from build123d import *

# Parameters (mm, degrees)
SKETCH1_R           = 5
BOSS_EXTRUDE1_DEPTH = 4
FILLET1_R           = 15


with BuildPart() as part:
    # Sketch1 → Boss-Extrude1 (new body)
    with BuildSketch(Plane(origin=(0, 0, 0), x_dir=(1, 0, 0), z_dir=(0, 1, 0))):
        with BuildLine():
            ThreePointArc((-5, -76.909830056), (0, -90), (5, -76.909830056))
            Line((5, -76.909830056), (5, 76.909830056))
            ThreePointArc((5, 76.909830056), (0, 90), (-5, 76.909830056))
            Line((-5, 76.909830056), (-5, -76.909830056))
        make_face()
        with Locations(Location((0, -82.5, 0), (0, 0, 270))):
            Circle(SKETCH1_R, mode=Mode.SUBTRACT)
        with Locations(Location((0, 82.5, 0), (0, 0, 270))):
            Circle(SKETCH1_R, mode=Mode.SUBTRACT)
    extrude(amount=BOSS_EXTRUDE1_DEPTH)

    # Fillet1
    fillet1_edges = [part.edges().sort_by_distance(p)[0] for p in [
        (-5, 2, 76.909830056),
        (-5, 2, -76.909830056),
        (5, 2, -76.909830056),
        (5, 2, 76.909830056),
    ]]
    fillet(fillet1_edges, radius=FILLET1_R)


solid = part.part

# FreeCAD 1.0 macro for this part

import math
import FreeCAD as App
import Part
import Sketcher

V = App.Vector


def edges_at(feature, points):
    """Names of the edges that pass closest to the given points."""
    edges = feature.Shape.Edges
    near = lambda p: min(range(len(edges)), key=lambda i: edges[i].distToShape(Part.Vertex(*p))[0])
    return sorted({f"Edge{near(p) + 1}" for p in points})

doc = App.newDocument("Part")
body = doc.addObject("PartDesign::Body", "Body")

# Sketch on XZ plane
sketch1 = body.newObject("Sketcher::SketchObject", "Sketch")
sketch1.AttachmentSupport = (doc.getObject("XZ_Plane"), [""])
sketch1.MapMode = "FlatFace"
sketch1.addGeometry([
    Part.ArcOfCircle(Part.Circle(V(0, 82, 0), V(0, 0, 1), 8), math.radians(-48), math.radians(228)),  # 0
    Part.LineSegment(V(5, 77, 0), V(5, -77, 0)),  # 1
    Part.ArcOfCircle(Part.Circle(V(0, -82, 0), V(0, 0, 1), 8), math.radians(132), math.radians(408)),  # 2
    Part.LineSegment(V(-5, -77, 0), V(-5, 77, 0)),  # 3
    Part.Circle(V(0, 82, 0), V(0, 0, 1), 5),  # 4
    Part.Circle(V(0, -82, 0), V(0, 0, 1), 5),  # 5
], False)
sketch1.addConstraint([
    Sketcher.Constraint("Coincident", 0, 1, 1, 1),
    Sketcher.Constraint("Coincident", 1, 2, 2, 2),
    Sketcher.Constraint("Coincident", 2, 1, 3, 1),
    Sketcher.Constraint("Coincident", 3, 2, 0, 2),
    Sketcher.Constraint("Vertical", 1),
    Sketcher.Constraint("Vertical", 3),
    Sketcher.Constraint("Coincident", 4, 3, 0, 3),
    Sketcher.Constraint("Coincident", 5, 3, 2, 3),
    Sketcher.Constraint("Equal", 0, 2),
    Sketcher.Constraint("Equal", 4, 5),
    Sketcher.Constraint("Symmetric", 0, 3, 2, 3, -1, 1),
    Sketcher.Constraint("Symmetric", 1, 2, 2, 1, -2),
    Sketcher.Constraint("Diameter", 4, 10.0),
    Sketcher.Constraint("Radius", 0, 7.5),
    Sketcher.Constraint("DistanceX", -1, 1, 0, 1, 5.0),
    Sketcher.Constraint("DistanceY", 2, 3, 0, 3, 165.0),
])
pad1 = body.newObject("PartDesign::Pad", "Pad")
pad1.Profile = sketch1
pad1.Length = 4
pad1.Reversed = True
doc.recompute()

fillet = body.newObject("PartDesign::Fillet", "Fillet")
fillet.Base = (pad1, edges_at(pad1, [
    (-5, 2, 76.91),
    (-5, 2, -76.91),
    (5, 2, -76.91),
    (5, 2, 76.91),
]))
fillet.Radius = 15

doc.recompute()
